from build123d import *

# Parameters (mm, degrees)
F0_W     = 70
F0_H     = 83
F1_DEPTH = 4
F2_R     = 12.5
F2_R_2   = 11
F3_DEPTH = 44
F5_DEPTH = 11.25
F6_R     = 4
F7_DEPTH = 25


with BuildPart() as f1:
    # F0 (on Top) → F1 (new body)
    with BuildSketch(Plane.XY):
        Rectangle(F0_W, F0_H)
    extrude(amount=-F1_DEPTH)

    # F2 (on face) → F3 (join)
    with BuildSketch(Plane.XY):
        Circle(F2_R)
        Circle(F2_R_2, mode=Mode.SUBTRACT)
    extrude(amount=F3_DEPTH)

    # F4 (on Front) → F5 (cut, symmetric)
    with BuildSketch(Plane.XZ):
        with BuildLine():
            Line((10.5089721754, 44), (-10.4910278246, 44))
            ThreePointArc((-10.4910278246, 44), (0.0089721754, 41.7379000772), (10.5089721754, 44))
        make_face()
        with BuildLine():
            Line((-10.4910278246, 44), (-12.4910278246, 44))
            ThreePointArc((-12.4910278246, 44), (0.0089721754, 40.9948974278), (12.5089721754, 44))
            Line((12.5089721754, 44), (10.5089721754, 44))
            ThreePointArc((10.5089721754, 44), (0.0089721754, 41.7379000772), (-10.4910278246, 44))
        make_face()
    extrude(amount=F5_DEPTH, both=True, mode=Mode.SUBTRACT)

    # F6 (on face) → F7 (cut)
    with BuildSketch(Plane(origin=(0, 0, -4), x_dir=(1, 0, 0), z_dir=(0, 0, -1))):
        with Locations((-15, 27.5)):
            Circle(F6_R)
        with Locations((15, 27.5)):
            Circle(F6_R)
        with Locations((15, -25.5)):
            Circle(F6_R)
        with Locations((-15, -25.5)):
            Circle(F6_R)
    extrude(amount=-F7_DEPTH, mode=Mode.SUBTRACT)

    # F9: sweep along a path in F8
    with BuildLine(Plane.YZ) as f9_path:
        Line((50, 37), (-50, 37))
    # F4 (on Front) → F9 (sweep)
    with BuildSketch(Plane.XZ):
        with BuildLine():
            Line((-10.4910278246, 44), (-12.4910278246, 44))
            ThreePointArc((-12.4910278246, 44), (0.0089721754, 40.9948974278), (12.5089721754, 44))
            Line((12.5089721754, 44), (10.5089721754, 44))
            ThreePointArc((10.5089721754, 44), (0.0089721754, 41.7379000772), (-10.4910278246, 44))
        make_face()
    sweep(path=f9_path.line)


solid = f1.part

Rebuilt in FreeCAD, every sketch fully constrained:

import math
import FreeCAD as App
import Part
import Sketcher
from FreeCAD import Vector
Q = App.Units.Quantity

doc = App.newDocument("Part")
body = doc.addObject("PartDesign::Body", "Body")

# Sketch on XY plane
sketch1 = doc.addObject("Sketcher::SketchObject", "Sketch")
body.addObject(sketch1)
sketch1.AttachmentSupport = (doc.XY_Plane, [""])
sketch1.MapMode = "FlatFace"
sketch1.addGeometry(Part.LineSegment(Vector(-35, 42, 0), Vector(-35, -42, 0)), False)
sketch1.addGeometry(Part.LineSegment(Vector(-35, -42, 0), Vector(35, -42, 0)), False)
sketch1.addGeometry(Part.LineSegment(Vector(35, -42, 0), Vector(35, 42, 0)), False)
sketch1.addGeometry(Part.LineSegment(Vector(35, 42, 0), Vector(-35, 42, 0)), False)
sketch1.addConstraint(Sketcher.Constraint("Coincident", 0, 2, 1, 1))
sketch1.addConstraint(Sketcher.Constraint("Coincident", 1, 2, 2, 1))
sketch1.addConstraint(Sketcher.Constraint("Coincident", 2, 2, 3, 1))
sketch1.addConstraint(Sketcher.Constraint("Coincident", 3, 2, 0, 1))
sketch1.addConstraint(Sketcher.Constraint("Vertical", 0))
sketch1.addConstraint(Sketcher.Constraint("Horizontal", 1))
sketch1.addConstraint(Sketcher.Constraint("Vertical", 2))
sketch1.addConstraint(Sketcher.Constraint("Horizontal", 3))
sketch1.addConstraint(Sketcher.Constraint("Symmetric", 0, 2, 2, 2, -1, 1))
sketch1.addConstraint(Sketcher.Constraint("DistanceX", 1, 1, 1, 2, Q("70 mm")))
sketch1.addConstraint(Sketcher.Constraint("DistanceY", 0, 2, 0, 1, Q("83 mm")))
pad1 = doc.addObject("PartDesign::Pad", "Pad")
body.addObject(pad1)
pad1.Profile = sketch1
pad1.Length = 4
pad1.Reversed = True

# Sketch on XY plane
sketch2 = doc.addObject("Sketcher::SketchObject", "Sketch001")
body.addObject(sketch2)
sketch2.AttachmentSupport = (doc.XY_Plane, [""])
sketch2.MapMode = "FlatFace"
sketch2.addGeometry(Part.Circle(Vector(0, 0, 0), Vector(0, 0, 1), 12), False)
sketch2.addGeometry(Part.Circle(Vector(0, 0, 0), Vector(0, 0, 1), 11), False)
sketch2.addConstraint(Sketcher.Constraint("Coincident", 0, 3, -1, 1))
sketch2.addConstraint(Sketcher.Constraint("Coincident", 1, 3, -1, 1))
sketch2.addConstraint(Sketcher.Constraint("Diameter", 0, Q("25 mm")))
sketch2.addConstraint(Sketcher.Constraint("Diameter", 1, Q("22 mm")))
pad2 = doc.addObject("PartDesign::Pad", "Pad001")
body.addObject(pad2)
pad2.Profile = sketch2
pad2.Length = 44

# Sketch on XZ plane
sketch3 = doc.addObject("Sketcher::SketchObject", "Sketch002")
body.addObject(sketch3)
sketch3.AttachmentSupport = (doc.XZ_Plane, [""])
sketch3.MapMode = "FlatFace"
sketch3.addGeometry(Part.ArcOfCircle(Part.Circle(Vector(0, 68, 0), Vector(0, 0, 1), 28), math.radians(-117), math.radians(-63)), False)
sketch3.addGeometry(Part.LineSegment(Vector(13, 44, 0), Vector(-12, 44, 0)), False)
sketch3.addConstraint(Sketcher.Constraint("Coincident", 0, 1, 1, 2))
sketch3.addConstraint(Sketcher.Constraint("Coincident", 1, 1, 0, 2))
sketch3.addConstraint(Sketcher.Constraint("Horizontal", 1))
sketch3.addConstraint(Sketcher.Constraint("Radius", 0, Q("27.5 mm")))
sketch3.addConstraint(Sketcher.Constraint("DistanceX", 1, 2, 1, 1, Q("25 mm")))
sketch3.addConstraint(Sketcher.Constraint("DistanceY", -1, 1, 0, 1, Q("44 mm")))
sketch3.addConstraint(Sketcher.Constraint("DistanceX", -1, 1, 0, 3, Q("0.008972 mm")))
pocket1 = doc.addObject("PartDesign::Pocket", "Pocket")
body.addObject(pocket1)
pocket1.Profile = sketch3
pocket1.Length = 22.5
pocket1.Midplane = True

# Sketch on XY plane
sketch4 = doc.addObject("Sketcher::SketchObject", "Sketch003")
body.addObject(sketch4)
sketch4.AttachmentSupport = (doc.XY_Plane, [""])
sketch4.MapMode = "FlatFace"
sketch4.AttachmentOffset = App.Placement(Vector(0, 0, -4), App.Rotation())
sketch4.addGeometry(Part.Circle(Vector(-15, -27.5, 0), Vector(0, 0, 1), 4), False)
sketch4.addGeometry(Part.Circle(Vector(15, -27.5, 0), Vector(0, 0, 1), 4), False)
sketch4.addGeometry(Part.Circle(Vector(15, 25.5, 0), Vector(0, 0, 1), 4), False)
sketch4.addGeometry(Part.Circle(Vector(-15, 25.5, 0), Vector(0, 0, 1), 4), False)
sketch4.addConstraint(Sketcher.Constraint("Equal", 0, 1))
sketch4.addConstraint(Sketcher.Constraint("Equal", 1, 2))
sketch4.addConstraint(Sketcher.Constraint("Equal", 2, 3))
sketch4.addConstraint(Sketcher.Constraint("Symmetric", 0, 3, 1, 3, -2))
sketch4.addConstraint(Sketcher.Constraint("Symmetric", 2, 3, 3, 3, -2))
sketch4.addConstraint(Sketcher.Constraint("Vertical", 1, 3, 2, 3))
sketch4.addConstraint(Sketcher.Constraint("Diameter", 0, Q("8 mm")))
sketch4.addConstraint(Sketcher.Constraint("DistanceX", 0, 3, -1, 1, Q("15 mm")))
sketch4.addConstraint(Sketcher.Constraint("DistanceY", 1, 3, 2, 3, Q("53 mm")))
sketch4.addConstraint(Sketcher.Constraint("DistanceY", 0, 3, -1, 1, Q("27.5 mm")))
pocket2 = doc.addObject("PartDesign::Pocket", "Pocket001")
body.addObject(pocket2)
pocket2.Profile = sketch4
pocket2.Length = 25
pocket2.Reversed = True

# Sketch on XZ plane
sketch5 = doc.addObject("Sketcher::SketchObject", "Sketch004")
body.addObject(sketch5)
sketch5.AttachmentSupport = (doc.XZ_Plane, [""])
sketch5.MapMode = "FlatFace"
sketch5.addGeometry(Part.LineSegment(Vector(-10.5, 44, 0), Vector(-12.5, 44, 0)), False)
sketch5.addGeometry(Part.ArcOfCircle(Part.Circle(Vector(0, 68.5, 0), Vector(0, 0, 1), 27.5), math.radians(-117), math.radians(-63)), False)
sketch5.addGeometry(Part.LineSegment(Vector(12.5, 44, 0), Vector(10.5, 44, 0)), False)
sketch5.addGeometry(Part.ArcOfCircle(Part.Circle(Vector(0, 67.2, 0), Vector(0, 0, 1), 25.5), math.radians(-114), math.radians(-66)), False)
sketch5.addConstraint(Sketcher.Constraint("Coincident", 0, 2, 1, 1))
sketch5.addConstraint(Sketcher.Constraint("Coincident", 1, 2, 2, 1))
sketch5.addConstraint(Sketcher.Constraint("Coincident", 2, 2, 3, 2))
sketch5.addConstraint(Sketcher.Constraint("Coincident", 3, 1, 0, 1))
sketch5.addConstraint(Sketcher.Constraint("Horizontal", 0))
sketch5.addConstraint(Sketcher.Constraint("Horizontal", 2))
sketch5.addConstraint(Sketcher.Constraint("Horizontal", 0, 2, 1, 2))
sketch5.addConstraint(Sketcher.Constraint("Vertical", 1, 3, 3, 3))
sketch5.addConstraint(Sketcher.Constraint("Radius", 1, Q("27.5 mm")))
sketch5.addConstraint(Sketcher.Constraint("Radius", 3, Q("25.5 mm")))
sketch5.addConstraint(Sketcher.Constraint("DistanceX", 0, 2, 0, 1, Q("2 mm")))
sketch5.addConstraint(Sketcher.Constraint("DistanceY", -1, 1, 0, 2, Q("44 mm")))
sketch5.addConstraint(Sketcher.Constraint("DistanceX", 0, 2, 1, 2, Q("25 mm")))
sketch5.addConstraint(Sketcher.Constraint("DistanceX", -1, 1, 1, 3, Q("0.008972 mm")))

# Sketch on XY plane
sketch6 = doc.addObject("Sketcher::SketchObject", "Sketch005")
body.addObject(sketch6)
sketch6.AttachmentSupport = (doc.XY_Plane, [""])
sketch6.MapMode = "FlatFace"
sketch6.AttachmentOffset = App.Placement(Vector(0, 0, 37), App.Rotation())
sketch6.addGeometry(Part.LineSegment(Vector(0, 50, 0), Vector(0, -50, 0)), False)
sketch6.addConstraint(Sketcher.Constraint("Vertical", 0))
sketch6.addConstraint(Sketcher.Constraint("Symmetric", 0, 1, 0, 2, -1, 1))
sketch6.addConstraint(Sketcher.Constraint("DistanceY", 0, 2, 0, 1, Q("100 mm")))
doc.recompute()

additivepipe = doc.addObject("PartDesign::AdditivePipe", "AdditivePipe")
body.addObject(additivepipe)
additivepipe.Profile = sketch5
additivepipe.Spine = (sketch6, ["Edge1"])

doc.recompute()
